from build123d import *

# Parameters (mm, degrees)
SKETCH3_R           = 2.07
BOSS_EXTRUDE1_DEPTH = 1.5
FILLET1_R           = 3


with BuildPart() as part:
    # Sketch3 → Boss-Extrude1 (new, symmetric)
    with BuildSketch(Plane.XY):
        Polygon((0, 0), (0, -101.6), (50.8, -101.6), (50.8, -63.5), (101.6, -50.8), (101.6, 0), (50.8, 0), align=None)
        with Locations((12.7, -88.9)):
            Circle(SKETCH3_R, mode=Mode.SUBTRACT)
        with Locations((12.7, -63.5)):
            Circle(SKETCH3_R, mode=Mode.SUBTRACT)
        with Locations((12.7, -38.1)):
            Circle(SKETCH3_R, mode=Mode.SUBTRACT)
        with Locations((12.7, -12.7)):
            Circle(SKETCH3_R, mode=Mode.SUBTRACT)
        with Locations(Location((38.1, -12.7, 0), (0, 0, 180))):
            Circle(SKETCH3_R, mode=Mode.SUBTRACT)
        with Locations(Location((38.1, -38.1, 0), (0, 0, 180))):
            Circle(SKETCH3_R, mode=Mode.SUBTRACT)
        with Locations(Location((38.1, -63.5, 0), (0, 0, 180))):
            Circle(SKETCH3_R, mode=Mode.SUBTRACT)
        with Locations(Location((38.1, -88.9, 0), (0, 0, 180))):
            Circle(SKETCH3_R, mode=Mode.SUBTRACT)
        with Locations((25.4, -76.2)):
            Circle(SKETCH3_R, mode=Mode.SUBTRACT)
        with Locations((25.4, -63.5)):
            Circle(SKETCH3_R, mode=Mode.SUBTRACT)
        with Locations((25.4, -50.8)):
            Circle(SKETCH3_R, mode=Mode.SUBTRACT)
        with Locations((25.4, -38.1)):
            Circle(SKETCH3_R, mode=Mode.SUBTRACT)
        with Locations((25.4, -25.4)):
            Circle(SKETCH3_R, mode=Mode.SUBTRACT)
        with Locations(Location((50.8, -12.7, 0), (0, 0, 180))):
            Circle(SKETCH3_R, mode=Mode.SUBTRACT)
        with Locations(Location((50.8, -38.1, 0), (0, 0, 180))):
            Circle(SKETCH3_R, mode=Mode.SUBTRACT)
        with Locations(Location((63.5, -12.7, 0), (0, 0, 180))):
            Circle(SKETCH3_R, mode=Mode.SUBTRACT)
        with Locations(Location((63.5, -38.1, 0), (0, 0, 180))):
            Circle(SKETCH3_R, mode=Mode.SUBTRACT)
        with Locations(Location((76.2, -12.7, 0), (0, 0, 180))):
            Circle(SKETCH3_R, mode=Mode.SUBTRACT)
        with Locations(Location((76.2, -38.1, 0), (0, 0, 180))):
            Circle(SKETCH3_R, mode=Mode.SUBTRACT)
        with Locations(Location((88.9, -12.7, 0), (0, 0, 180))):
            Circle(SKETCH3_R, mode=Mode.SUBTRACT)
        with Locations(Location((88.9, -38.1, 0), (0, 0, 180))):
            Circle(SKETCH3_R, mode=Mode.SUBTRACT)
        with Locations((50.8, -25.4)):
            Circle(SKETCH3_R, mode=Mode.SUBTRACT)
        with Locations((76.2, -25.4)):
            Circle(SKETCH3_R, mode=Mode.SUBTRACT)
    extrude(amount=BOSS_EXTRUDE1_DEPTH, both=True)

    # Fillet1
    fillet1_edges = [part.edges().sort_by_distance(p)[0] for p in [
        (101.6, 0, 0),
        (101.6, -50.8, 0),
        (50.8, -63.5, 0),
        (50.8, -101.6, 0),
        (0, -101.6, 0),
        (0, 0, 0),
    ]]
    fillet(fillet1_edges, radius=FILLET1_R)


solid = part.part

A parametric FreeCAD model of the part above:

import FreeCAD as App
import Part
import Sketcher
from FreeCAD import Vector
Q = App.Units.Quantity


def edges_at(feature, points):
    """Names of the edges that pass closest to the given points."""
    edges = feature.Shape.Edges
    near = lambda p: min(range(len(edges)), key=lambda i: edges[i].distToShape(Part.Vertex(*p))[0])
    return sorted({f"Edge{near(p) + 1}" for p in points})


def add_polygon(sketch, points):
    """Adds a closed chain of lines whose ends are joined by coincident constraints."""
    first, n = sketch.GeometryCount, len(points)
    for a, b in zip(points, points[1:] + points[:1]):
        sketch.addGeometry(Part.LineSegment(App.Vector(*a, 0), App.Vector(*b, 0)), False)
    for i in range(n):
        sketch.addConstraint(Sketcher.Constraint("Coincident", first + i, 2, first + (i + 1) % n, 1))

doc = App.newDocument("Part")
body = doc.addObject("PartDesign::Body", "Body")

# Sketch on XY plane
sketch1 = doc.addObject("Sketcher::SketchObject", "Sketch")
body.addObject(sketch1)
sketch1.AttachmentSupport = (doc.XY_Plane, [""])
sketch1.MapMode = "FlatFace"
add_polygon(sketch1, [(0, 0), (0, -101.6), (50.8, -101.6), (50.8, -63.5), (101.6, -50.8), (101.6, 0)])  # lines 0-5
sketch1.addGeometry(Part.Circle(Vector(12.7, -88.9, 0), Vector(0, 0, 1), 2.1), False)  # 6
sketch1.addGeometry(Part.Circle(Vector(25.4, -76.2, 0), Vector(0, 0, 1), 2.1), False)  # 7
sketch1.addGeometry(Part.Circle(Vector(38.1, -88.9, 0), Vector(0, 0, 1), 2.1), False)  # 8
sketch1.addGeometry(Part.Circle(Vector(12.7, -63.5, 0), Vector(0, 0, 1), 2.1), False)  # 9
sketch1.addGeometry(Part.Circle(Vector(25.4, -63.5, 0), Vector(0, 0, 1), 2.1), False)  # 10
sketch1.addGeometry(Part.Circle(Vector(38.1, -63.5, 0), Vector(0, 0, 1), 2.1), False)  # 11
sketch1.addGeometry(Part.Circle(Vector(25.4, -50.8, 0), Vector(0, 0, 1), 2.1), False)  # 12
sketch1.addGeometry(Part.Circle(Vector(12.7, -38.1, 0), Vector(0, 0, 1), 2.1), False)  # 13
sketch1.addGeometry(Part.Circle(Vector(25.4, -38.1, 0), Vector(0, 0, 1), 2.1), False)  # 14
sketch1.addGeometry(Part.Circle(Vector(38.1, -38.1, 0), Vector(0, 0, 1), 2.1), False)  # 15
sketch1.addGeometry(Part.Circle(Vector(50.8, -38.1, 0), Vector(0, 0, 1), 2.1), False)  # 16
sketch1.addGeometry(Part.Circle(Vector(25.4, -25.4, 0), Vector(0, 0, 1), 2.1), False)  # 17
sketch1.addGeometry(Part.Circle(Vector(12.7, -12.7, 0), Vector(0, 0, 1), 2.1), False)  # 18
sketch1.addGeometry(Part.Circle(Vector(50.8, -25.4, 0), Vector(0, 0, 1), 2.1), False)  # 19
sketch1.addGeometry(Part.Circle(Vector(38.1, -12.7, 0), Vector(0, 0, 1), 2.1), False)  # 20
sketch1.addGeometry(Part.Circle(Vector(50.8, -12.7, 0), Vector(0, 0, 1), 2.1), False)  # 21
sketch1.addGeometry(Part.Circle(Vector(63.5, -38.1, 0), Vector(0, 0, 1), 2.1), False)  # 22
sketch1.addGeometry(Part.Circle(Vector(76.2, -38.1, 0), Vector(0, 0, 1), 2.1), False)  # 23
sketch1.addGeometry(Part.Circle(Vector(88.9, -38.1, 0), Vector(0, 0, 1), 2.1), False)  # 24
sketch1.addGeometry(Part.Circle(Vector(63.5, -12.7, 0), Vector(0, 0, 1), 2.1), False)  # 25
sketch1.addGeometry(Part.Circle(Vector(76.2, -25.4, 0), Vector(0, 0, 1), 2.1), False)  # 26
sketch1.addGeometry(Part.Circle(Vector(76.2, -12.7, 0), Vector(0, 0, 1), 2.1), False)  # 27
sketch1.addGeometry(Part.Circle(Vector(88.9, -12.7, 0), Vector(0, 0, 1), 2.1), False)  # 28
sketch1.addConstraint(Sketcher.Constraint("Vertical", 0))
sketch1.addConstraint(Sketcher.Constraint("Horizontal", 1))
sketch1.addConstraint(Sketcher.Constraint("Vertical", 2))
sketch1.addConstraint(Sketcher.Constraint("Vertical", 4))
sketch1.addConstraint(Sketcher.Constraint("Horizontal", 5))
sketch1.addConstraint(Sketcher.Constraint("Coincident", 5, 2, -1, 1))
sketch1.addConstraint(Sketcher.Constraint("Equal", 6, 7))
sketch1.addConstraint(Sketcher.Constraint("Equal", 7, 8))
sketch1.addConstraint(Sketcher.Constraint("Equal", 8, 9))
sketch1.addConstraint(Sketcher.Constraint("Equal", 9, 10))
sketch1.addConstraint(Sketcher.Constraint("Equal", 10, 11))
sketch1.addConstraint(Sketcher.Constraint("Equal", 11, 12))
sketch1.addConstraint(Sketcher.Constraint("Equal", 12, 13))
sketch1.addConstraint(Sketcher.Constraint("Equal", 13, 14))
sketch1.addConstraint(Sketcher.Constraint("Equal", 14, 15))
sketch1.addConstraint(Sketcher.Constraint("Equal", 15, 16))
sketch1.addConstraint(Sketcher.Constraint("Equal", 16, 17))
sketch1.addConstraint(Sketcher.Constraint("Equal", 17, 18))
sketch1.addConstraint(Sketcher.Constraint("Equal", 18, 19))
sketch1.addConstraint(Sketcher.Constraint("Equal", 19, 20))
sketch1.addConstraint(Sketcher.Constraint("Equal", 20, 21))
sketch1.addConstraint(Sketcher.Constraint("Equal", 21, 22))
sketch1.addConstraint(Sketcher.Constraint("Equal", 22, 23))
sketch1.addConstraint(Sketcher.Constraint("Equal", 23, 24))
sketch1.addConstraint(Sketcher.Constraint("Equal", 24, 25))
sketch1.addConstraint(Sketcher.Constraint("Equal", 25, 26))
sketch1.addConstraint(Sketcher.Constraint("Equal", 26, 27))
sketch1.addConstraint(Sketcher.Constraint("Equal", 27, 28))
sketch1.addConstraint(Sketcher.Constraint("Horizontal", 6, 3, 8, 3))
sketch1.addConstraint(Sketcher.Constraint("Horizontal", 9, 3, 10, 3))
sketch1.addConstraint(Sketcher.Constraint("Horizontal", 10, 3, 11, 3))
sketch1.addConstraint(Sketcher.Constraint("Horizontal", 13, 3, 14, 3))
sketch1.addConstraint(Sketcher.Constraint("Horizontal", 14, 3, 15, 3))
sketch1.addConstraint(Sketcher.Constraint("Horizontal", 15, 3, 16, 3))
sketch1.addConstraint(Sketcher.Constraint("Horizontal", 17, 3, 19, 3))
sketch1.addConstraint(Sketcher.Constraint("Horizontal", 18, 3, 20, 3))
sketch1.addConstraint(Sketcher.Constraint("Horizontal", 20, 3, 21, 3))
sketch1.addConstraint(Sketcher.Constraint("Horizontal", 16, 3, 22, 3))
sketch1.addConstraint(Sketcher.Constraint("Horizontal", 22, 3, 23, 3))
sketch1.addConstraint(Sketcher.Constraint("Horizontal", 23, 3, 24, 3))
sketch1.addConstraint(Sketcher.Constraint("Horizontal", 21, 3, 25, 3))
sketch1.addConstraint(Sketcher.Constraint("Horizontal", 19, 3, 26, 3))
sketch1.addConstraint(Sketcher.Constraint("Horizontal", 25, 3, 27, 3))
sketch1.addConstraint(Sketcher.Constraint("Horizontal", 27, 3, 28, 3))
sketch1.addConstraint(Sketcher.Constraint("Horizontal", 11, 3, 2, 2))
sketch1.addConstraint(Sketcher.Constraint("Horizontal", 12, 3, 3, 2))
sketch1.addConstraint(Sketcher.Constraint("Vertical", 6, 3, 9, 3))
sketch1.addConstraint(Sketcher.Constraint("Vertical", 7, 3, 10, 3))
sketch1.addConstraint(Sketcher.Constraint("Vertical", 8, 3, 11, 3))
sketch1.addConstraint(Sketcher.Constraint("Vertical", 10, 3, 12, 3))
sketch1.addConstraint(Sketcher.Constraint("Vertical", 9, 3, 13, 3))
sketch1.addConstraint(Sketcher.Constraint("Vertical", 12, 3, 14, 3))
sketch1.addConstraint(Sketcher.Constraint("Vertical", 11, 3, 15, 3))
sketch1.addConstraint(Sketcher.Constraint("Vertical", 14, 3, 17, 3))
sketch1.addConstraint(Sketcher.Constraint("Vertical", 13, 3, 18, 3))
sketch1.addConstraint(Sketcher.Constraint("Vertical", 16, 3, 19, 3))
sketch1.addConstraint(Sketcher.Constraint("Vertical", 15, 3, 20, 3))
sketch1.addConstraint(Sketcher.Constraint("Vertical", 19, 3, 21, 3))
sketch1.addConstraint(Sketcher.Constraint("Vertical", 22, 3, 25, 3))
sketch1.addConstraint(Sketcher.Constraint("Vertical", 23, 3, 26, 3))
sketch1.addConstraint(Sketcher.Constraint("Vertical", 26, 3, 27, 3))
sketch1.addConstraint(Sketcher.Constraint("Vertical", 24, 3, 28, 3))
sketch1.addConstraint(Sketcher.Constraint("Vertical", 21, 3, 1, 2))
sketch1.addConstraint(Sketcher.Constraint("Equal", 5, 0))
sketch1.addConstraint(Sketcher.Constraint("Equal", 1, 4))
sketch1.addConstraint(Sketcher.Constraint("DistanceX", 1, 1, 1, 2, Q("2 in")))
sketch1.addConstraint(Sketcher.Constraint("DistanceX", 5, 2, 5, 1, Q("4 in")))
sketch1.addConstraint(Sketcher.Constraint("DistanceY", 2, 1, 2, 2, Q("1.5 in")))
sketch1.addConstraint(Sketcher.Constraint("DistanceX", -1, 1, 7, 3, Q("1 in")))
sketch1.addConstraint(Sketcher.Constraint("DistanceY", 7, 3, -1, 1, Q("3 in")))
sketch1.addConstraint(Sketcher.Constraint("DistanceY", 17, 3, -1, 1, Q("1 in")))
sketch1.addConstraint(Sketcher.Constraint("DistanceX", -1, 1, 23, 3, Q("3 in")))
sketch1.addConstraint(Sketcher.Constraint("DistanceX", 6, 3, 8, 3, Q("1 in")))
sketch1.addConstraint(Sketcher.Constraint("DistanceY", 6, 3, 9, 3, Q("1 in")))
sketch1.addConstraint(Sketcher.Constraint("DistanceY", 9, 3, 13, 3, Q("1 in")))
sketch1.addConstraint(Sketcher.Constraint("DistanceY", 13, 3, 18, 3, Q("1 in")))
sketch1.addConstraint(Sketcher.Constraint("DistanceX", 15, 3, 22, 3, Q("1 in")))
sketch1.addConstraint(Sketcher.Constraint("DistanceX", 22, 3, 24, 3, Q("1 in")))
sketch1.addConstraint(Sketcher.Constraint("DistanceX", -1, 1, 6, 3, Q("0.5 in")))
sketch1.addConstraint(Sketcher.Constraint("Diameter", 6, Q("4.14 mm")))
pad1 = doc.addObject("PartDesign::Pad", "Pad")
body.addObject(pad1)
pad1.Profile = sketch1
pad1.Length = 3
pad1.Midplane = True
doc.recompute()

fillet = doc.addObject("PartDesign::Fillet", "Fillet")
body.addObject(fillet)
fillet.Base = (pad1, edges_at(pad1, [
    (101.6, 0, 0),
    (101.6, -50.8, 0),
    (50.8, -63.5, 0),
    (50.8, -101.6, 0),
    (0, -101.6, 0),
    (0, 0, 0),
]))
fillet.Radius = 3

doc.recompute()
